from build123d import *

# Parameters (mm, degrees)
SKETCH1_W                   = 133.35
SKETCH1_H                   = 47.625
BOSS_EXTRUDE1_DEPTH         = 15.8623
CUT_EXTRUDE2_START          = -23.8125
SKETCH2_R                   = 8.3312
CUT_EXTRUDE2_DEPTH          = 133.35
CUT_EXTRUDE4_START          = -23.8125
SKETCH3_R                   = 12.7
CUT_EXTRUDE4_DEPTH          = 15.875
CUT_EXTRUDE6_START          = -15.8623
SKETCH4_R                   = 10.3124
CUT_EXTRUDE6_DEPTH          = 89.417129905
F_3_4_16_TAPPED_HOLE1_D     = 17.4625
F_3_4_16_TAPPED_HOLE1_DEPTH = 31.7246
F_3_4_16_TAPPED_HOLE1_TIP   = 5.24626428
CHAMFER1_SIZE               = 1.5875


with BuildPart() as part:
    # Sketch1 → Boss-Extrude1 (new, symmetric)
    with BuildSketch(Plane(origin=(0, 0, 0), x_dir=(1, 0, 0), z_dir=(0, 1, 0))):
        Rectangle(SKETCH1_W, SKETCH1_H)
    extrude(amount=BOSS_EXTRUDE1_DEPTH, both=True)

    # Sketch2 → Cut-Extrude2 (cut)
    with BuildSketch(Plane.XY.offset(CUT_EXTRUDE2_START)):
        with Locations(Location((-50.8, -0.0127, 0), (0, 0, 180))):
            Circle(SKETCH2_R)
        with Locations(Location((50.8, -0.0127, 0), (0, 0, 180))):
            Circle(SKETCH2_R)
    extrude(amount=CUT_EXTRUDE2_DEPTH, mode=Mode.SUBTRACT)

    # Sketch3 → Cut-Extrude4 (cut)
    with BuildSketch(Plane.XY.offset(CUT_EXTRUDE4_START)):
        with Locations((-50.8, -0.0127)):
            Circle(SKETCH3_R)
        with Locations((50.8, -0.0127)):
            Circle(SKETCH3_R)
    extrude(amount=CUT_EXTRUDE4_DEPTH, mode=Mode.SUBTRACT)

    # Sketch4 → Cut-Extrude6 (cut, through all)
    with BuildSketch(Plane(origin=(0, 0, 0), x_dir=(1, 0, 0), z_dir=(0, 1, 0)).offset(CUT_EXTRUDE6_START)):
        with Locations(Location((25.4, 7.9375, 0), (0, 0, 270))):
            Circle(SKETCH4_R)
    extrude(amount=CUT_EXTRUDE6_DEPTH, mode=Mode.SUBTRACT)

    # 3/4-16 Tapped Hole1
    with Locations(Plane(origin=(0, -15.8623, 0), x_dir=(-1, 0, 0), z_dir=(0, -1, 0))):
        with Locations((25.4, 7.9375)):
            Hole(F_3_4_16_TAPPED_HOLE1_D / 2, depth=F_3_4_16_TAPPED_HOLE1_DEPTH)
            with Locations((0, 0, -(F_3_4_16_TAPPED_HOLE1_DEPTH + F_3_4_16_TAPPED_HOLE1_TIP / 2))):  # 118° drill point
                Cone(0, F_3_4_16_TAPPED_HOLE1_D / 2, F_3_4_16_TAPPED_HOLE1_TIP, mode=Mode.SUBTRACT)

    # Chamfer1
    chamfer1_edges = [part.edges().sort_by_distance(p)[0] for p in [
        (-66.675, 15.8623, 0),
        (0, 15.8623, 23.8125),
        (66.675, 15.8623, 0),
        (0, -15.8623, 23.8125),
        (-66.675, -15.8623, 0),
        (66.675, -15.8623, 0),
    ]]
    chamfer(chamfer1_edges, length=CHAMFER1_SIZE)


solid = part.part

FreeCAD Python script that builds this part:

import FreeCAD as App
import Part
import Sketcher

V = App.Vector
Q = App.Units.Quantity


def edges_at(feature, points):
    """Names of the edges that pass closest to the given points."""
    edges = feature.Shape.Edges
    near = lambda p: min(range(len(edges)), key=lambda i: edges[i].distToShape(Part.Vertex(*p))[0])
    return sorted({f"Edge{near(p) + 1}" for p in points})

doc = App.newDocument("Part")
body = doc.addObject("PartDesign::Body", "Body")

# Sketch on XZ plane
sketch1 = body.newObject("Sketcher::SketchObject", "Sketch")
sketch1.AttachmentSupport = (doc.getObject("XZ_Plane"), [""])
sketch1.MapMode = "FlatFace"
sketch1.addGeometry([
    Part.LineSegment(V(-67, -24, 0), V(-67, 24, 0)),
    Part.LineSegment(V(-67, 24, 0), V(67, 24, 0)),
    Part.LineSegment(V(67, 24, 0), V(67, -24, 0)),
    Part.LineSegment(V(67, -24, 0), V(-67, -24, 0)),
], False)
sketch1.addConstraint([
    Sketcher.Constraint("Coincident", 0, 2, 1, 1),
    Sketcher.Constraint("Coincident", 1, 2, 2, 1),
    Sketcher.Constraint("Coincident", 2, 2, 3, 1),
    Sketcher.Constraint("Coincident", 3, 2, 0, 1),
    Sketcher.Constraint("Vertical", 0),
    Sketcher.Constraint("Horizontal", 1),
    Sketcher.Constraint("Vertical", 2),
    Sketcher.Constraint("Horizontal", 3),
    Sketcher.Constraint("Symmetric", 0, 2, 2, 2, -1, 1),
    Sketcher.Constraint("DistanceX", 1, 1, 1, 2, Q("5.25 in")),
    Sketcher.Constraint("DistanceY", 0, 1, 0, 2, Q("1.875 in")),
])
pad1 = body.newObject("PartDesign::Pad", "Pad")
pad1.Profile = sketch1
pad1.Length = Q("1.249 in")
pad1.Midplane = True

# Sketch on XY plane
sketch2 = body.newObject("Sketcher::SketchObject", "Sketch001")
sketch2.AttachmentSupport = (doc.getObject("XY_Plane"), [""])
sketch2.MapMode = "FlatFace"
sketch2.AttachmentOffset = App.Placement(V(0, 0, -0.9375 * 25.4), App.Rotation())
sketch2.addGeometry([
    Part.Circle(V(-51, 0, 0), V(0, 0, 1), 8),
    Part.Circle(V(51, 0, 0), V(0, 0, 1), 8),
], False)
sketch2.addConstraint([
    Sketcher.Constraint("Equal", 0, 1),
    Sketcher.Constraint("Symmetric", 0, 3, 1, 3, -2),
    Sketcher.Constraint("Diameter", 0, Q("0.656 in")),
    Sketcher.Constraint("DistanceX", 0, 3, -1, 1, Q("2 in")),
    Sketcher.Constraint("DistanceY", 0, 3, -1, 1, Q("0.0005 in")),
])
pocket1 = body.newObject("PartDesign::Pocket", "Pocket")
pocket1.Profile = sketch2
pocket1.Length = Q("5.25 in")
pocket1.Reversed = True

# Sketch on XY plane
sketch3 = body.newObject("Sketcher::SketchObject", "Sketch002")
sketch3.AttachmentSupport = (doc.getObject("XY_Plane"), [""])
sketch3.MapMode = "FlatFace"
sketch3.AttachmentOffset = App.Placement(V(0, 0, -0.9375 * 25.4), App.Rotation())
sketch3.addGeometry([
    Part.Circle(V(-51, 0, 0), V(0, 0, 1), 13),
    Part.Circle(V(51, 0, 0), V(0, 0, 1), 13),
], False)
sketch3.addConstraint([
    Sketcher.Constraint("Equal", 0, 1),
    Sketcher.Constraint("Symmetric", 0, 3, 1, 3, -2),
    Sketcher.Constraint("Diameter", 0, Q("1 in")),
    Sketcher.Constraint("DistanceX", 0, 3, -1, 1, Q("2 in")),
    Sketcher.Constraint("DistanceY", 0, 3, -1, 1, Q("0.0005 in")),
])
pocket2 = body.newObject("PartDesign::Pocket", "Pocket001")
pocket2.Profile = sketch3
pocket2.Length = Q("0.625 in")
pocket2.Reversed = True

# Sketch on XZ plane
sketch4 = body.newObject("Sketcher::SketchObject", "Sketch003")
sketch4.AttachmentSupport = (doc.getObject("XZ_Plane"), [""])
sketch4.MapMode = "FlatFace"
sketch4.AttachmentOffset = App.Placement(V(0, 0, 0.6245 * 25.4), App.Rotation())
sketch4.addGeometry(Part.Circle(V(25, -8, 0), V(0, 0, 1), 10), False)
sketch4.addConstraint([
    Sketcher.Constraint("Diameter", 0, Q("0.812 in")),
    Sketcher.Constraint("DistanceX", -1, 1, 0, 3, Q("1 in")),
    Sketcher.Constraint("DistanceY", 0, 3, -1, 1, Q("0.3125 in")),
])
pocket3 = body.newObject("PartDesign::Pocket", "Pocket002")
pocket3.Profile = sketch4
pocket3.Type = "ThroughAll"

# Sketch on XZ plane
sketch5 = body.newObject("Sketcher::SketchObject", "Sketch004")
sketch5.AttachmentSupport = (doc.getObject("XZ_Plane"), [""])
sketch5.MapMode = "FlatFace"
sketch5.AttachmentOffset = App.Placement(V(0, 0, 0.6245 * 25.4), App.Rotation())
sketch5.addGeometry(Part.Circle(V(-25, -8, 0), V(0, 0, 1), 9), False)
sketch5.addConstraint([
    Sketcher.Constraint("Diameter", 0, Q("0.6875 in")),
    Sketcher.Constraint("DistanceX", 0, 3, -1, 1, Q("1 in")),
    Sketcher.Constraint("DistanceY", 0, 3, -1, 1, Q("0.3125 in")),
])
doc.recompute()
hole = body.newObject("PartDesign::Hole", "Hole")
hole.Profile = sketch5
hole.ThreadType = "None"
hole.Diameter = Q("0.6875 in")
hole.DepthType = "Dimension"
hole.Depth = Q("1.249 in")
hole.DrillPoint = "Angled"
hole.DrillPointAngle = 118
doc.recompute()

chamfer = body.newObject("PartDesign::Chamfer", "Chamfer")
chamfer.Base = (hole, edges_at(hole, [
    (-66.675, 15.862, 0),
    (0, 15.862, 23.812),
    (66.675, 15.862, 0),
    (0, -15.862, 23.812),
    (-66.675, -15.862, 0),
    (66.675, -15.862, 0),
]))
chamfer.Size = Q("0.0625 in")

doc.recompute()
